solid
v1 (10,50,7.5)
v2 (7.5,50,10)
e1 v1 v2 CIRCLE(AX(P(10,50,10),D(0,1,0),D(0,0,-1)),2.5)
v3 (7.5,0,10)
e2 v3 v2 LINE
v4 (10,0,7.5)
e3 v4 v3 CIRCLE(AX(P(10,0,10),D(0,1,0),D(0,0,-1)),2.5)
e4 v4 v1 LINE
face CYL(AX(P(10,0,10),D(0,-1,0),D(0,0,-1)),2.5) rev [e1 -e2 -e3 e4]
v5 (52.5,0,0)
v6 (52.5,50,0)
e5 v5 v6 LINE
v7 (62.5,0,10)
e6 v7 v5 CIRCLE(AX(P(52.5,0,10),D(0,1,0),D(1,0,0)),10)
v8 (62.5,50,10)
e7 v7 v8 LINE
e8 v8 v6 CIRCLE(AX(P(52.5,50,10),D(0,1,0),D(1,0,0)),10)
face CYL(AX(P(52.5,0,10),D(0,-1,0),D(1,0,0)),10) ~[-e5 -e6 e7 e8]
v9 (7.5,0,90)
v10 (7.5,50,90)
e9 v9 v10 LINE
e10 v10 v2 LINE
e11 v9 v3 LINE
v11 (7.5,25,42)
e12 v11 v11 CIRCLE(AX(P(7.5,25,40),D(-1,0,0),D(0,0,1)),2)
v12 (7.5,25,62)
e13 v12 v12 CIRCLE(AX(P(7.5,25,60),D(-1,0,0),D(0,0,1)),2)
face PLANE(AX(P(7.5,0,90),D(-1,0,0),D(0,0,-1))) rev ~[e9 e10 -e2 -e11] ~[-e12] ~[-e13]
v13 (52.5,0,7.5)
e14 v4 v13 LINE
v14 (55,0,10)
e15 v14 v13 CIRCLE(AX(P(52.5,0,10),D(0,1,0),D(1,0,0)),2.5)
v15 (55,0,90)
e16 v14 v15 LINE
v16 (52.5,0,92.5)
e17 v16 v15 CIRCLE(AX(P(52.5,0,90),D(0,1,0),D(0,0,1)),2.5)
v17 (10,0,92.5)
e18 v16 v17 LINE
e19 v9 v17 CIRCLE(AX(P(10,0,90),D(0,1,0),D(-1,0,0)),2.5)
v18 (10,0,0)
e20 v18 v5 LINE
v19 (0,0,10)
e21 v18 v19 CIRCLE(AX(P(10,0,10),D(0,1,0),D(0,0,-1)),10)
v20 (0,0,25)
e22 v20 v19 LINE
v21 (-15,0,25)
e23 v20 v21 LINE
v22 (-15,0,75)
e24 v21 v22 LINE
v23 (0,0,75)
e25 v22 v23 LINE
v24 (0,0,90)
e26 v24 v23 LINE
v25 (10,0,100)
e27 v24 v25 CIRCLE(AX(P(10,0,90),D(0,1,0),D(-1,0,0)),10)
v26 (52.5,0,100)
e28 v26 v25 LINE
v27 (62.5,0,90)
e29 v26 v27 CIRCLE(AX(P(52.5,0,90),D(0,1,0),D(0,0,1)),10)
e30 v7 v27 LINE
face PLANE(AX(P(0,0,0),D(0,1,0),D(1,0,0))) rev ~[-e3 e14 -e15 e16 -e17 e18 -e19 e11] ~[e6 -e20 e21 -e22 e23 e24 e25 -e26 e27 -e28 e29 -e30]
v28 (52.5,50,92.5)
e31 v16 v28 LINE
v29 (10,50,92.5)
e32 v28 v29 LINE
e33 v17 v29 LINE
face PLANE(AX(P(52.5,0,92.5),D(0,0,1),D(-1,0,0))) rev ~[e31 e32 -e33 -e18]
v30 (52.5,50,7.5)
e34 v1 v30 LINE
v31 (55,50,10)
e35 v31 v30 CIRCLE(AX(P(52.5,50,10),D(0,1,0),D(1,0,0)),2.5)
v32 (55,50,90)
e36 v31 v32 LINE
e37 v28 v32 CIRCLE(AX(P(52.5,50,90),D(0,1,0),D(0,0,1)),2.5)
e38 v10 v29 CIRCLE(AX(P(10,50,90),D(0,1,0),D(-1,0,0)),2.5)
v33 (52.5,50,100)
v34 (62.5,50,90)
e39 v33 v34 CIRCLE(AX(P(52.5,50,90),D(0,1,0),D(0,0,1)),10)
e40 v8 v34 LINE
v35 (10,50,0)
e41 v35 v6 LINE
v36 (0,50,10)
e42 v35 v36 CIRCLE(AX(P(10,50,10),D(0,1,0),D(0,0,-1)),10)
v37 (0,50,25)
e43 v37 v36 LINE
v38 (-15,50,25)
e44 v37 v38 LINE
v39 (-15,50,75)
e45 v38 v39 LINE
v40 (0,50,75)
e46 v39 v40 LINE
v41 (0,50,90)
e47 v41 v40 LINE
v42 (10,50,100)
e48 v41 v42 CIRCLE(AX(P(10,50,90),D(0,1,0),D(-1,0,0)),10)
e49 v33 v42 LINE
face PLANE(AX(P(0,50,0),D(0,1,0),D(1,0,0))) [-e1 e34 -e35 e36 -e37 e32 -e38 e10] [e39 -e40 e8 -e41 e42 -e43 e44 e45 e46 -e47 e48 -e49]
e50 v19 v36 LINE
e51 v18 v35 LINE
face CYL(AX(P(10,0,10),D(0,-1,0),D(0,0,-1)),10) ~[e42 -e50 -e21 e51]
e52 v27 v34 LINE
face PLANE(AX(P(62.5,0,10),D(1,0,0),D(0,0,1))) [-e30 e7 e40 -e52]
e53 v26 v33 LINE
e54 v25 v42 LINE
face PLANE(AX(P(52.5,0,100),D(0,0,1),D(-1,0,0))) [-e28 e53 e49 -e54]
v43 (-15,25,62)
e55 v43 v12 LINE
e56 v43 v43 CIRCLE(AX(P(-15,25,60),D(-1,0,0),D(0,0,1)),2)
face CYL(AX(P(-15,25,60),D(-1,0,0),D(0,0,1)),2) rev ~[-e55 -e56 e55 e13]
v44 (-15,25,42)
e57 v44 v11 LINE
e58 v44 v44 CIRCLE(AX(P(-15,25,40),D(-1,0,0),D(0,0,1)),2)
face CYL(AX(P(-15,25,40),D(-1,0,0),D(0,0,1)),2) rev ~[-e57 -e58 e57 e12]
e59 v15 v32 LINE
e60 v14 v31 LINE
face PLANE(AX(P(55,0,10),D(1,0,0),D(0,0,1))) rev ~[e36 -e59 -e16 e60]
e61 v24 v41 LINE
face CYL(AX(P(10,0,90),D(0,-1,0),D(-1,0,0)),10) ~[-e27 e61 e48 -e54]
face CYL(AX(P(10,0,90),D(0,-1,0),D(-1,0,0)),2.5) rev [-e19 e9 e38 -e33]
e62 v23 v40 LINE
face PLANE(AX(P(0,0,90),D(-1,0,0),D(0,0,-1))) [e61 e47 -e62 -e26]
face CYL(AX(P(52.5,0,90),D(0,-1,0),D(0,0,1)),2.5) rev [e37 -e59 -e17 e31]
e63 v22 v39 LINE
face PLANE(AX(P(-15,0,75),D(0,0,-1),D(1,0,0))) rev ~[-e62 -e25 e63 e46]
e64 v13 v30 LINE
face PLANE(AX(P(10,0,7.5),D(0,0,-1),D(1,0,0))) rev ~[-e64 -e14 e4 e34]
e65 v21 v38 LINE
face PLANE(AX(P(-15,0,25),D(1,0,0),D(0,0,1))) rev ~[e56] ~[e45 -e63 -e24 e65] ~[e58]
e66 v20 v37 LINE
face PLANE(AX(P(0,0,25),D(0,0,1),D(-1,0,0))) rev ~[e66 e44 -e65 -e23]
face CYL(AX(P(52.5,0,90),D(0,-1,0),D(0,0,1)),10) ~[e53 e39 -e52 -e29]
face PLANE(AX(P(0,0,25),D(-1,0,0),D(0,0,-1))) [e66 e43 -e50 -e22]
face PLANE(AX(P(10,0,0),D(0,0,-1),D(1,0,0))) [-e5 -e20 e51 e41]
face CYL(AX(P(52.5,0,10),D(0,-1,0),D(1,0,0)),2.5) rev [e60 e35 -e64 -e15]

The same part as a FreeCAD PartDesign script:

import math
import FreeCAD as App
import Part
import Sketcher

V = App.Vector

doc = App.newDocument("Part")
body = doc.addObject("PartDesign::Body", "Body")

sketch1 = doc.addObject("Sketcher::SketchObject", "Sketch")
body.addObject(sketch1)
sketch1.AttachmentSupport = (doc.XZ_Plane, [""])
sketch1.MapMode = "FlatFace"
sketch1.addGeometry([
    Part.LineSegment(V(52.5, 0, 0), V(10, 0, 0)),
    Part.ArcOfCircle(Part.Circle(V(10, 10, 0), V(0, 0, 1), 10), math.radians(180), math.radians(270)),
    Part.LineSegment(V(0, 10, 0), V(0, 25, 0)),
    Part.LineSegment(V(0, 25, 0), V(-15, 25, 0)),
    Part.LineSegment(V(-15, 25, 0), V(-15, 75, 0)),
    Part.LineSegment(V(-15, 75, 0), V(0, 75, 0)),
    Part.LineSegment(V(0, 75, 0), V(0, 90, 0)),
    Part.ArcOfCircle(Part.Circle(V(10, 90, 0), V(0, 0, 1), 10), math.radians(90), math.radians(180)),
    Part.LineSegment(V(10, 100, 0), V(52.5, 100, 0)),
    Part.ArcOfCircle(Part.Circle(V(52.5, 90, 0), V(0, 0, 1), 10), math.radians(0), math.radians(90)),
    Part.LineSegment(V(62.5, 90, 0), V(62.5, 10, 0)),
    Part.ArcOfCircle(Part.Circle(V(52.5, 10, 0), V(0, 0, 1), 10), math.radians(-90), math.radians(0)),
    Part.ArcOfCircle(Part.Circle(V(10, 10, 0), V(0, 0, 1), 2.5), math.radians(180), math.radians(270)),
    Part.LineSegment(V(10, 7.5, 0), V(52.5, 7.5, 0)),
    Part.ArcOfCircle(Part.Circle(V(52.5, 10, 0), V(0, 0, 1), 2.5), math.radians(-90), math.radians(0)),
    Part.LineSegment(V(55, 10, 0), V(55, 90, 0)),
    Part.ArcOfCircle(Part.Circle(V(52.5, 90, 0), V(0, 0, 1), 2.5), math.radians(0), math.radians(90)),
    Part.LineSegment(V(52.5, 92.5, 0), V(10, 92.5, 0)),
    Part.ArcOfCircle(Part.Circle(V(10, 90, 0), V(0, 0, 1), 2.5), math.radians(90), math.radians(180)),
    Part.LineSegment(V(7.5, 90, 0), V(7.5, 10, 0)),
], False)
sketch1.addConstraint([
    Sketcher.Constraint("Tangent", 0, 2, 1, 2),
    Sketcher.Constraint("Tangent", 1, 1, 2, 1),
    Sketcher.Constraint("Coincident", 2, 2, 3, 1),
    Sketcher.Constraint("Coincident", 3, 2, 4, 1),
    Sketcher.Constraint("Coincident", 4, 2, 5, 1),
    Sketcher.Constraint("Coincident", 5, 2, 6, 1),
    Sketcher.Constraint("Tangent", 6, 2, 7, 2),
    Sketcher.Constraint("Tangent", 7, 1, 8, 1),
    Sketcher.Constraint("Tangent", 8, 2, 9, 2),
    Sketcher.Constraint("Tangent", 9, 1, 10, 1),
    Sketcher.Constraint("Tangent", 10, 2, 11, 2),
    Sketcher.Constraint("Tangent", 11, 1, 0, 1),
    Sketcher.Constraint("Tangent", 12, 2, 13, 1),
    Sketcher.Constraint("Tangent", 13, 2, 14, 1),
    Sketcher.Constraint("Tangent", 14, 2, 15, 1),
    Sketcher.Constraint("Tangent", 15, 2, 16, 1),
    Sketcher.Constraint("Tangent", 16, 2, 17, 1),
    Sketcher.Constraint("Tangent", 17, 2, 18, 1),
    Sketcher.Constraint("Tangent", 18, 2, 19, 1),
    Sketcher.Constraint("Tangent", 19, 2, 12, 1),
    Sketcher.Constraint("Horizontal", 0),
    Sketcher.Constraint("Vertical", 2),
    Sketcher.Constraint("Horizontal", 3),
    Sketcher.Constraint("Vertical", 4),
    Sketcher.Constraint("Horizontal", 5),
    Sketcher.Constraint("Vertical", 6),
    Sketcher.Constraint("Horizontal", 8),
    Sketcher.Constraint("Vertical", 10),
    Sketcher.Constraint("Horizontal", 13),
    Sketcher.Constraint("Vertical", 15),
    Sketcher.Constraint("Horizontal", 17),
    Sketcher.Constraint("Vertical", 19),
    Sketcher.Constraint("Coincident", 12, 3, 1, 3),
    Sketcher.Constraint("Coincident", 14, 3, 11, 3),
    Sketcher.Constraint("Coincident", 16, 3, 9, 3),
    Sketcher.Constraint("Coincident", 18, 3, 7, 3),
    Sketcher.Constraint("Equal", 1, 7),
    Sketcher.Constraint("Equal", 7, 9),
    Sketcher.Constraint("Equal", 9, 11),
    Sketcher.Constraint("PointOnObject", 0, 2, -1),
    Sketcher.Constraint("PointOnObject", 1, 1, -2),
    Sketcher.Constraint("Equal", 5, 2),
    Sketcher.Constraint("Equal", 2, 6),
    Sketcher.Constraint("Radius", 1, 10.0),
    Sketcher.Constraint("Radius", 12, 2.5),
    Sketcher.Constraint("DistanceX", 3, 2, 3, 1, 15.0),
    Sketcher.Constraint("DistanceY", 4, 1, 4, 2, 50.0),
    Sketcher.Constraint("DistanceX", 0, 2, 0, 1, 42.5),
])
pad1 = doc.addObject("PartDesign::Pad", "Pad")
body.addObject(pad1)
pad1.Profile = sketch1
pad1.Length = 50
pad1.Reversed = True

sketch2 = doc.addObject("Sketcher::SketchObject", "Sketch001")
body.addObject(sketch2)
sketch2.AttachmentSupport = (doc.YZ_Plane, [""])
sketch2.MapMode = "FlatFace"
sketch2.AttachmentOffset = App.Placement(V(0, 0, -15), App.Rotation())
sketch2.addGeometry([
    Part.Circle(V(25, 40, 0), V(0, 0, 1), 2),
    Part.Circle(V(25, 60, 0), V(0, 0, 1), 2),
], False)
sketch2.addConstraint([
    Sketcher.Constraint("Equal", 0, 1),
    Sketcher.Constraint("Vertical", 0, 3, 1, 3),
    Sketcher.Constraint("Diameter", 0, 4.0),
    Sketcher.Constraint("DistanceX", -1, 1, 0, 3, 25.0),
    Sketcher.Constraint("DistanceY", -1, 1, 0, 3, 40.0),
    Sketcher.Constraint("DistanceY", -1, 1, 1, 3, 60.0),
])
pocket1 = doc.addObject("PartDesign::Pocket", "Pocket")
body.addObject(pocket1)
pocket1.Profile = sketch2
pocket1.Length = 45
pocket1.Reversed = True

doc.recompute()
